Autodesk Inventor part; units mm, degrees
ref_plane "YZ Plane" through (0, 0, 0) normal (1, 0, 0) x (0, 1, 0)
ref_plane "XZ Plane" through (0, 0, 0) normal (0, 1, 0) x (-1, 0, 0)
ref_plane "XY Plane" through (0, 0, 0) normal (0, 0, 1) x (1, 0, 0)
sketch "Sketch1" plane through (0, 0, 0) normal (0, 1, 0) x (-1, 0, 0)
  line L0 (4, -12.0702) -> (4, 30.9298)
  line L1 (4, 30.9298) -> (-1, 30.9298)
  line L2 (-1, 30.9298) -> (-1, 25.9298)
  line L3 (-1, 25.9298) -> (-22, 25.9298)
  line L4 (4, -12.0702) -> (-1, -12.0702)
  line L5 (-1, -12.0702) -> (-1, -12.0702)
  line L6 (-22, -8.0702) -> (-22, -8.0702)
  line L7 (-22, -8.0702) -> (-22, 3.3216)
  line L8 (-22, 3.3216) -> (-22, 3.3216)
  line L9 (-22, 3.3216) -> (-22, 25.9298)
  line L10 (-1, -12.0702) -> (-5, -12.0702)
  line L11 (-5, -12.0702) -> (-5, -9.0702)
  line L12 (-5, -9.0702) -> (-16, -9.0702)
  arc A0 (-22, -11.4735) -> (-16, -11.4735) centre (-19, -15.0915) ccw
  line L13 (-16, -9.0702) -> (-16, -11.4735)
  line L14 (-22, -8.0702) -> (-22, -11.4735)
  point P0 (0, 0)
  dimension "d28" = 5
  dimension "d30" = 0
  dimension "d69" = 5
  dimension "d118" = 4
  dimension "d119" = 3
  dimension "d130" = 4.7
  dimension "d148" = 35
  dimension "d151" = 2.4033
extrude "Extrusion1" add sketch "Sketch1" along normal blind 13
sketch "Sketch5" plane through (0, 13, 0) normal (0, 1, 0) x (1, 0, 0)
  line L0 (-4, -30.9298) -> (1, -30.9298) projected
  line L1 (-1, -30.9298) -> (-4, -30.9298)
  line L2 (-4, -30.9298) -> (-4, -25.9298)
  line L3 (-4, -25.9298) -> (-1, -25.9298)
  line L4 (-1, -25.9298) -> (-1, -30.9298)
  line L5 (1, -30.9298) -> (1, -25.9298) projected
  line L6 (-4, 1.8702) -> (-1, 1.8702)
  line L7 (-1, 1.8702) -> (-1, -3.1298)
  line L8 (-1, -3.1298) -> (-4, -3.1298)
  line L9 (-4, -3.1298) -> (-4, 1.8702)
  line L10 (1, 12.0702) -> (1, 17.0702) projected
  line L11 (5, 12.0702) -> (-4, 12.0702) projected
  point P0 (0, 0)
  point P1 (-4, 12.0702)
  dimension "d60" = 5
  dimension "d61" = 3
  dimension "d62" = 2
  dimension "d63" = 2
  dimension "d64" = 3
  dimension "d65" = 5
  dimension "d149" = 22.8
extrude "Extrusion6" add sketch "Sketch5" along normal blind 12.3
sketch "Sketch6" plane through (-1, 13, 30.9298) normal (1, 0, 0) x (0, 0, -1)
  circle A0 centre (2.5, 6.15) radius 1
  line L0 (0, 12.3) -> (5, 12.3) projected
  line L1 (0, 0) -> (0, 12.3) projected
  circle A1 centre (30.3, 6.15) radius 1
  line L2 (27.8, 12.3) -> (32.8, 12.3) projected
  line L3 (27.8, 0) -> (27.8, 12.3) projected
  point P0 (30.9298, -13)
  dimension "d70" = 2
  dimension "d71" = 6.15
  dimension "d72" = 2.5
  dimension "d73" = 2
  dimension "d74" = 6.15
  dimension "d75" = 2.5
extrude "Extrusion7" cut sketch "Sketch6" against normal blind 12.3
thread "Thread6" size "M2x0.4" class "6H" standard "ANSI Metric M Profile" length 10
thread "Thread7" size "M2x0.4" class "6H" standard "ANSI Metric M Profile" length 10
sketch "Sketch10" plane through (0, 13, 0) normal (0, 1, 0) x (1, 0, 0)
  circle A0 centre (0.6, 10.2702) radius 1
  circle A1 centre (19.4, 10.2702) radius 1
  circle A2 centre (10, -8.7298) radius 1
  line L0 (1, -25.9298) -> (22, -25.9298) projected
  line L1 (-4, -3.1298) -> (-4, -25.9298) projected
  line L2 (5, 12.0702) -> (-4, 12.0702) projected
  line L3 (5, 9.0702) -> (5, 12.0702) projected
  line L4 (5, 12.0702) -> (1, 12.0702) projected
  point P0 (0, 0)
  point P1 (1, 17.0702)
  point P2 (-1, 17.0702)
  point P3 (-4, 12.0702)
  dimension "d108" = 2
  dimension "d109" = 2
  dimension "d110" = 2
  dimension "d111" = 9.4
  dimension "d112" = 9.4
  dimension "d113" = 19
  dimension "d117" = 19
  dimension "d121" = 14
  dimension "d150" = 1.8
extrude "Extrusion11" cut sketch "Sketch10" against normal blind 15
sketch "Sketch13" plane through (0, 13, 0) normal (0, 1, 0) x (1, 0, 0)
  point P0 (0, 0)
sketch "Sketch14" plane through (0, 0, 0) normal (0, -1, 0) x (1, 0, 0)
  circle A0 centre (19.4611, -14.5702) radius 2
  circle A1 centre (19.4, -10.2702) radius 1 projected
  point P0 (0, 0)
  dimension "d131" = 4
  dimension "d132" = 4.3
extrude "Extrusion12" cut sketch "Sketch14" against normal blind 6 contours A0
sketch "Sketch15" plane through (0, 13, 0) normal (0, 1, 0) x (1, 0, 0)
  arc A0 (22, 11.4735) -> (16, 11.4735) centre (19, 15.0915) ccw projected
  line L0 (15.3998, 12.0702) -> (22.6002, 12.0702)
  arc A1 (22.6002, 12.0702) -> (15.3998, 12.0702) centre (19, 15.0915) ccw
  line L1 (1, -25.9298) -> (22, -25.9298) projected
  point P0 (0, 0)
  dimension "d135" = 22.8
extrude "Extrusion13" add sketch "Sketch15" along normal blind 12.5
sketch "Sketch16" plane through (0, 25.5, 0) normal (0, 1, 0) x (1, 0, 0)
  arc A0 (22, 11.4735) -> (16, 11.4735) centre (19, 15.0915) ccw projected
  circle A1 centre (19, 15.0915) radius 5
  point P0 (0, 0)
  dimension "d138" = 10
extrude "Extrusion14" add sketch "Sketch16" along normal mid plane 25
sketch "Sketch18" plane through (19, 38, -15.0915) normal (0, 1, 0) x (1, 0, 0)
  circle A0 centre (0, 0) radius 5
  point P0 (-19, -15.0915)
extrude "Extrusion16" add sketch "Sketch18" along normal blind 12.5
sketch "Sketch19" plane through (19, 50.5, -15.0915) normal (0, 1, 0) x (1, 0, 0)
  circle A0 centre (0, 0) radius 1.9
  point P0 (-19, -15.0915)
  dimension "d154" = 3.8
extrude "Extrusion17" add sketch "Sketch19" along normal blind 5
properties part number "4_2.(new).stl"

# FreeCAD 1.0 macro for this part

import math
import FreeCAD as App
import Part
import Sketcher
from FreeCAD import Vector

doc = App.newDocument("Part")
params = doc.addObject("Spreadsheet::Sheet", "Params")
for row, (alias, value) in enumerate([
    ("sketch1_radius", "4.7 mm"),
    ("sketch1_width", "5 mm"),
    ("sketch1_height", "3 mm"),
    ("sketch1_width2", "21 mm"),
    ("pad1_length", "13 mm"),
    ("sketch2_width", "3 mm"),
    ("sketch2_height", "5 mm"),
    ("pad2_length", "12.3 mm"),
    ("sketch3_diameter", "2 mm"),
    ("pocket1_length", "12.3 mm"),
    ("sketch4_diameter", "2 mm"),
    ("pocket2_length", "15 mm"),
    ("sketch5_diameter", "4 mm"),
    ("pocket3_length", "6 mm"),
    ("sketch6_radius", "4.7 mm"),
    ("pad3_length", "12.5 mm"),
    ("sketch7_diameter", "10 mm"),
    ("pad4_length", "25 mm"),
    ("sketch8_diameter", "10 mm"),
    ("pad5_length", "12.5 mm"),
    ("sketch9_diameter", "3.8 mm"),
    ("pad6_length", "5 mm"),
], start=1):
    params.set(f"A{row}", alias)
    params.set(f"B{row}", "=" + value)
    params.setAlias(f"B{row}", alias)

body = doc.addObject("PartDesign::Body", "Body")

sketch1 = body.newObject("Sketcher::SketchObject", "Sketch")
sketch1.AttachmentSupport = (doc.getObject("XZ_Plane"), [""])
sketch1.MapMode = "FlatFace"
sketch1.addGeometry(Part.LineSegment(Vector(5, -12.1, 0), Vector(-4, -12.1, 0)), False)
sketch1.addGeometry(Part.LineSegment(Vector(-4, -12.1, 0), Vector(-4, 30.9, 0)), False)
sketch1.addGeometry(Part.LineSegment(Vector(-4, 30.9, 0), Vector(1, 30.9, 0)), False)
sketch1.addGeometry(Part.LineSegment(Vector(1, 30.9, 0), Vector(1, 25.9, 0)), False)
sketch1.addGeometry(Part.LineSegment(Vector(1, 25.9, 0), Vector(22, 25.9, 0)), False)
sketch1.addGeometry(Part.LineSegment(Vector(22, 25.9, 0), Vector(22, -11.5, 0)), False)
sketch1.addGeometry(Part.ArcOfCircle(Part.Circle(Vector(19, -15.1, 0), Vector(0, 0, 1), 4.7), math.radians(130), math.radians(410)), False)
sketch1.addGeometry(Part.LineSegment(Vector(16, -11.5, 0), Vector(16, -9.1, 0)), False)
sketch1.addGeometry(Part.LineSegment(Vector(16, -9.1, 0), Vector(5, -9.1, 0)), False)
sketch1.addGeometry(Part.LineSegment(Vector(5, -9.1, 0), Vector(5, -12.1, 0)), False)
sketch1.addConstraint(Sketcher.Constraint("Coincident", 0, 2, 1, 1))
sketch1.addConstraint(Sketcher.Constraint("Coincident", 1, 2, 2, 1))
sketch1.addConstraint(Sketcher.Constraint("Coincident", 2, 2, 3, 1))
sketch1.addConstraint(Sketcher.Constraint("Coincident", 3, 2, 4, 1))
sketch1.addConstraint(Sketcher.Constraint("Coincident", 4, 2, 5, 1))
sketch1.addConstraint(Sketcher.Constraint("Coincident", 5, 2, 6, 2))
sketch1.addConstraint(Sketcher.Constraint("Coincident", 6, 1, 7, 1))
sketch1.addConstraint(Sketcher.Constraint("Coincident", 7, 2, 8, 1))
sketch1.addConstraint(Sketcher.Constraint("Coincident", 8, 2, 9, 1))
sketch1.addConstraint(Sketcher.Constraint("Coincident", 9, 2, 0, 1))
sketch1.addConstraint(Sketcher.Constraint("Horizontal", 0))
sketch1.addConstraint(Sketcher.Constraint("Vertical", 1))
sketch1.addConstraint(Sketcher.Constraint("Horizontal", 2))
sketch1.addConstraint(Sketcher.Constraint("Vertical", 3))
sketch1.addConstraint(Sketcher.Constraint("Horizontal", 4))
sketch1.addConstraint(Sketcher.Constraint("Vertical", 5))
sketch1.addConstraint(Sketcher.Constraint("Vertical", 7))
sketch1.addConstraint(Sketcher.Constraint("Horizontal", 8))
sketch1.addConstraint(Sketcher.Constraint("Vertical", 9))
sketch1.addConstraint(Sketcher.Constraint("Horizontal", 5, 2, 6, 1))
sketch1.addConstraint(Sketcher.Constraint("Equal", 2, 3))
sketch1.addConstraint(Sketcher.Constraint("Radius", 6, 4.7))
sketch1.addConstraint(Sketcher.Constraint("DistanceX", 2, 1, 2, 2, 5.0))
sketch1.addConstraint(Sketcher.Constraint("DistanceY", 9, 2, 9, 1, 3.0))
sketch1.addConstraint(Sketcher.Constraint("DistanceX", 0, 2, -1, 1, 4.0))
sketch1.addConstraint(Sketcher.Constraint("DistanceX", -1, 1, 8, 2, 5.0))
sketch1.addConstraint(Sketcher.Constraint("DistanceX", 6, 3, 4, 2, 3.0))
sketch1.addConstraint(Sketcher.Constraint("DistanceY", 7, 2, 4, 2, 35.0))
sketch1.addConstraint(Sketcher.Constraint("DistanceX", 4, 1, 4, 2, 21.0))
sketch1.addConstraint(Sketcher.Constraint("DistanceY", 7, 1, 7, 2, 2.4033))
sketch1.addConstraint(Sketcher.Constraint("DistanceY", 6, 3, -1, 1, 15.0915))
sketch1.setExpression("Constraints[21]", "Params.sketch1_radius")
sketch1.setExpression("Constraints[22]", "Params.sketch1_width")
sketch1.setExpression("Constraints[23]", "Params.sketch1_height")
sketch1.setExpression("Constraints[28]", "Params.sketch1_width2")
pad1 = body.newObject("PartDesign::Pad", "Pad")
pad1.Profile = sketch1
pad1.setExpression("Length", "Params.pad1_length")
pad1.Reversed = True

sketch2 = body.newObject("Sketcher::SketchObject", "Sketch001")
sketch2.AttachmentSupport = (doc.getObject("XZ_Plane"), [""])
sketch2.MapMode = "FlatFace"
sketch2.AttachmentOffset = App.Placement(Vector(0, 0, -13), App.Rotation())
sketch2.addGeometry(Part.LineSegment(Vector(-4, 25.9, 0), Vector(-4, 30.9, 0)), False)
sketch2.addGeometry(Part.LineSegment(Vector(-4, 30.9, 0), Vector(-1, 30.9, 0)), False)
sketch2.addGeometry(Part.LineSegment(Vector(-1, 30.9, 0), Vector(-1, 25.9, 0)), False)
sketch2.addGeometry(Part.LineSegment(Vector(-1, 25.9, 0), Vector(-4, 25.9, 0)), False)
sketch2.addGeometry(Part.LineSegment(Vector(-1, -1.9, 0), Vector(-4, -1.9, 0)), False)
sketch2.addGeometry(Part.LineSegment(Vector(-4, -1.9, 0), Vector(-4, 3.1, 0)), False)
sketch2.addGeometry(Part.LineSegment(Vector(-4, 3.1, 0), Vector(-1, 3.1, 0)), False)
sketch2.addGeometry(Part.LineSegment(Vector(-1, 3.1, 0), Vector(-1, -1.9, 0)), False)
sketch2.addConstraint(Sketcher.Constraint("Coincident", 0, 2, 1, 1))
sketch2.addConstraint(Sketcher.Constraint("Coincident", 1, 2, 2, 1))
sketch2.addConstraint(Sketcher.Constraint("Coincident", 2, 2, 3, 1))
sketch2.addConstraint(Sketcher.Constraint("Coincident", 3, 2, 0, 1))
sketch2.addConstraint(Sketcher.Constraint("Coincident", 4, 2, 5, 1))
sketch2.addConstraint(Sketcher.Constraint("Coincident", 5, 2, 6, 1))
sketch2.addConstraint(Sketcher.Constraint("Coincident", 6, 2, 7, 1))
sketch2.addConstraint(Sketcher.Constraint("Coincident", 7, 2, 4, 1))
sketch2.addConstraint(Sketcher.Constraint("Vertical", 0))
sketch2.addConstraint(Sketcher.Constraint("Horizontal", 1))
sketch2.addConstraint(Sketcher.Constraint("Vertical", 2))
sketch2.addConstraint(Sketcher.Constraint("Horizontal", 3))
sketch2.addConstraint(Sketcher.Constraint("Horizontal", 4))
sketch2.addConstraint(Sketcher.Constraint("Vertical", 5))
sketch2.addConstraint(Sketcher.Constraint("Horizontal", 6))
sketch2.addConstraint(Sketcher.Constraint("Vertical", 7))
sketch2.addConstraint(Sketcher.Constraint("Vertical", 3, 2, 4, 2))
sketch2.addConstraint(Sketcher.Constraint("Vertical", 2, 2, 6, 2))
sketch2.addConstraint(Sketcher.Constraint("Equal", 2, 5))
sketch2.addConstraint(Sketcher.Constraint("DistanceX", 1, 1, 1, 2, 3.0))
sketch2.addConstraint(Sketcher.Constraint("DistanceY", 0, 1, 0, 2, 5.0))
sketch2.addConstraint(Sketcher.Constraint("DistanceY", 5, 2, 3, 2, 22.8))
sketch2.addConstraint(Sketcher.Constraint("DistanceX", 0, 2, -1, 1, 4.0))
sketch2.addConstraint(Sketcher.Constraint("DistanceY", -1, 1, 0, 2, 30.9298))
sketch2.setExpression("Constraints[19]", "Params.sketch2_width")
sketch2.setExpression("Constraints[20]", "Params.sketch2_height")
pad2 = body.newObject("PartDesign::Pad", "Pad001")
pad2.Profile = sketch2
pad2.setExpression("Length", "Params.pad2_length")
pad2.Reversed = True

sketch3 = body.newObject("Sketcher::SketchObject", "Sketch002")
sketch3.AttachmentSupport = (doc.getObject("YZ_Plane"), [""])
sketch3.MapMode = "FlatFace"
sketch3.AttachmentOffset = App.Placement(Vector(0, 0, -1), App.Rotation())
sketch3.addGeometry(Part.Circle(Vector(19.1, 28.4, 0), Vector(0, 0, 1), 1), False)
sketch3.addGeometry(Part.Circle(Vector(19.1, 0.6, 0), Vector(0, 0, 1), 1), False)
sketch3.addConstraint(Sketcher.Constraint("Equal", 0, 1))
sketch3.addConstraint(Sketcher.Constraint("Vertical", 0, 3, 1, 3))
sketch3.addConstraint(Sketcher.Constraint("Diameter", 0, 2.0))
sketch3.addConstraint(Sketcher.Constraint("DistanceY", 1, 3, 0, 3, 27.8))
sketch3.addConstraint(Sketcher.Constraint("DistanceX", -1, 1, 0, 3, 19.15))
sketch3.addConstraint(Sketcher.Constraint("DistanceY", -1, 1, 0, 3, 28.4298))
sketch3.setExpression("Constraints[2]", "Params.sketch3_diameter")
pocket1 = body.newObject("PartDesign::Pocket", "Pocket")
pocket1.Profile = sketch3
pocket1.setExpression("Length", "Params.pocket1_length")

sketch4 = body.newObject("Sketcher::SketchObject", "Sketch003")
sketch4.AttachmentSupport = (doc.getObject("XZ_Plane"), [""])
sketch4.MapMode = "FlatFace"
sketch4.AttachmentOffset = App.Placement(Vector(0, 0, -13), App.Rotation())
sketch4.addGeometry(Part.Circle(Vector(0.6, -10.3, 0), Vector(0, 0, 1), 1), False)
sketch4.addGeometry(Part.Circle(Vector(19.4, -10.3, 0), Vector(0, 0, 1), 1), False)
sketch4.addGeometry(Part.Circle(Vector(10, 8.7, 0), Vector(0, 0, 1), 1), False)
sketch4.addConstraint(Sketcher.Constraint("Equal", 0, 1))
sketch4.addConstraint(Sketcher.Constraint("Equal", 1, 2))
sketch4.addConstraint(Sketcher.Constraint("Horizontal", 0, 3, 1, 3))
sketch4.addConstraint(Sketcher.Constraint("Diameter", 0, 2.0))
sketch4.addConstraint(Sketcher.Constraint("DistanceY", 1, 3, 2, 3, 19.0))
sketch4.addConstraint(Sketcher.Constraint("DistanceX", 2, 3, 1, 3, 9.4))
sketch4.addConstraint(Sketcher.Constraint("DistanceX", 0, 3, 2, 3, 9.4))
sketch4.addConstraint(Sketcher.Constraint("DistanceX", -1, 1, 2, 3, 10.0))
sketch4.addConstraint(Sketcher.Constraint("DistanceY", 0, 3, -1, 1, 10.2702))
sketch4.setExpression("Constraints[3]", "Params.sketch4_diameter")
pocket2 = body.newObject("PartDesign::Pocket", "Pocket001")
pocket2.Profile = sketch4
pocket2.setExpression("Length", "Params.pocket2_length")
pocket2.Reversed = True

sketch5 = body.newObject("Sketcher::SketchObject", "Sketch004")
sketch5.AttachmentSupport = (doc.getObject("XZ_Plane"), [""])
sketch5.MapMode = "FlatFace"
sketch5.addGeometry(Part.Circle(Vector(19.5, -14.6, 0), Vector(0, 0, 1), 2), False)
sketch5.addConstraint(Sketcher.Constraint("Diameter", 0, 4.0))
sketch5.addConstraint(Sketcher.Constraint("DistanceX", -1, 1, 0, 3, 19.461))
sketch5.addConstraint(Sketcher.Constraint("DistanceY", 0, 3, -1, 1, 14.5702))
sketch5.setExpression("Constraints[0]", "Params.sketch5_diameter")
pocket3 = body.newObject("PartDesign::Pocket", "Pocket002")
pocket3.Profile = sketch5
pocket3.setExpression("Length", "Params.pocket3_length")

sketch6 = body.newObject("Sketcher::SketchObject", "Sketch005")
sketch6.AttachmentSupport = (doc.getObject("XZ_Plane"), [""])
sketch6.MapMode = "FlatFace"
sketch6.AttachmentOffset = App.Placement(Vector(0, 0, -13), App.Rotation())
sketch6.addGeometry(Part.LineSegment(Vector(15.4, -12.1, 0), Vector(22.6, -12.1, 0)), False)
sketch6.addGeometry(Part.ArcOfCircle(Part.Circle(Vector(19, -15.1, 0), Vector(0, 0, 1), 4.7), math.radians(140), math.radians(400)), False)
sketch6.addConstraint(Sketcher.Constraint("Coincident", 0, 1, 1, 1))
sketch6.addConstraint(Sketcher.Constraint("Coincident", 1, 2, 0, 2))
sketch6.addConstraint(Sketcher.Constraint("Horizontal", 0))
sketch6.addConstraint(Sketcher.Constraint("Radius", 1, 4.7))
sketch6.addConstraint(Sketcher.Constraint("DistanceX", -1, 1, 1, 3, 19.0))
sketch6.addConstraint(Sketcher.Constraint("DistanceX", 0, 1, 0, 2, 7.2004))
sketch6.addConstraint(Sketcher.Constraint("DistanceY", 1, 3, -1, 1, 15.0915))
sketch6.setExpression("Constraints[3]", "Params.sketch6_radius")
pad3 = body.newObject("PartDesign::Pad", "Pad002")
pad3.Profile = sketch6
pad3.setExpression("Length", "Params.pad3_length")
pad3.Reversed = True

sketch7 = body.newObject("Sketcher::SketchObject", "Sketch006")
sketch7.AttachmentSupport = (doc.getObject("XZ_Plane"), [""])
sketch7.MapMode = "FlatFace"
sketch7.AttachmentOffset = App.Placement(Vector(0, 0, -25.5), App.Rotation())
sketch7.addGeometry(Part.Circle(Vector(19, -15, 0), Vector(0, 0, 1), 5), False)
sketch7.addConstraint(Sketcher.Constraint("Diameter", 0, 10.0))
sketch7.addConstraint(Sketcher.Constraint("DistanceX", -1, 1, 0, 3, 19.0))
sketch7.addConstraint(Sketcher.Constraint("DistanceY", 0, 3, -1, 1, 15.0915))
sketch7.setExpression("Constraints[0]", "Params.sketch7_diameter")
pad4 = body.newObject("PartDesign::Pad", "Pad003")
pad4.Profile = sketch7
pad4.setExpression("Length", "Params.pad4_length")
pad4.Midplane = True

sketch8 = body.newObject("Sketcher::SketchObject", "Sketch007")
sketch8.AttachmentSupport = (doc.getObject("XZ_Plane"), [""])
sketch8.MapMode = "FlatFace"
sketch8.AttachmentOffset = App.Placement(Vector(0, 0, -38), App.Rotation())
sketch8.addGeometry(Part.Circle(Vector(19, -15, 0), Vector(0, 0, 1), 5), False)
sketch8.addConstraint(Sketcher.Constraint("Diameter", 0, 10.0))
sketch8.addConstraint(Sketcher.Constraint("DistanceX", -1, 1, 0, 3, 19.0))
sketch8.addConstraint(Sketcher.Constraint("DistanceY", 0, 3, -1, 1, 15.0915))
sketch8.setExpression("Constraints[0]", "Params.sketch8_diameter")
pad5 = body.newObject("PartDesign::Pad", "Pad004")
pad5.Profile = sketch8
pad5.setExpression("Length", "Params.pad5_length")
pad5.Reversed = True

sketch9 = body.newObject("Sketcher::SketchObject", "Sketch008")
sketch9.AttachmentSupport = (doc.getObject("XZ_Plane"), [""])
sketch9.MapMode = "FlatFace"
sketch9.AttachmentOffset = App.Placement(Vector(0, 0, -50.5), App.Rotation())
sketch9.addGeometry(Part.Circle(Vector(19, -15.1, 0), Vector(0, 0, 1), 1.9), False)
sketch9.addConstraint(Sketcher.Constraint("Diameter", 0, 3.8))
sketch9.addConstraint(Sketcher.Constraint("DistanceX", -1, 1, 0, 3, 19.0))
sketch9.addConstraint(Sketcher.Constraint("DistanceY", 0, 3, -1, 1, 15.0915))
sketch9.setExpression("Constraints[0]", "Params.sketch9_diameter")
pad6 = body.newObject("PartDesign::Pad", "Pad005")
pad6.Profile = sketch9
pad6.setExpression("Length", "Params.pad6_length")
pad6.Reversed = True

doc.recompute()
